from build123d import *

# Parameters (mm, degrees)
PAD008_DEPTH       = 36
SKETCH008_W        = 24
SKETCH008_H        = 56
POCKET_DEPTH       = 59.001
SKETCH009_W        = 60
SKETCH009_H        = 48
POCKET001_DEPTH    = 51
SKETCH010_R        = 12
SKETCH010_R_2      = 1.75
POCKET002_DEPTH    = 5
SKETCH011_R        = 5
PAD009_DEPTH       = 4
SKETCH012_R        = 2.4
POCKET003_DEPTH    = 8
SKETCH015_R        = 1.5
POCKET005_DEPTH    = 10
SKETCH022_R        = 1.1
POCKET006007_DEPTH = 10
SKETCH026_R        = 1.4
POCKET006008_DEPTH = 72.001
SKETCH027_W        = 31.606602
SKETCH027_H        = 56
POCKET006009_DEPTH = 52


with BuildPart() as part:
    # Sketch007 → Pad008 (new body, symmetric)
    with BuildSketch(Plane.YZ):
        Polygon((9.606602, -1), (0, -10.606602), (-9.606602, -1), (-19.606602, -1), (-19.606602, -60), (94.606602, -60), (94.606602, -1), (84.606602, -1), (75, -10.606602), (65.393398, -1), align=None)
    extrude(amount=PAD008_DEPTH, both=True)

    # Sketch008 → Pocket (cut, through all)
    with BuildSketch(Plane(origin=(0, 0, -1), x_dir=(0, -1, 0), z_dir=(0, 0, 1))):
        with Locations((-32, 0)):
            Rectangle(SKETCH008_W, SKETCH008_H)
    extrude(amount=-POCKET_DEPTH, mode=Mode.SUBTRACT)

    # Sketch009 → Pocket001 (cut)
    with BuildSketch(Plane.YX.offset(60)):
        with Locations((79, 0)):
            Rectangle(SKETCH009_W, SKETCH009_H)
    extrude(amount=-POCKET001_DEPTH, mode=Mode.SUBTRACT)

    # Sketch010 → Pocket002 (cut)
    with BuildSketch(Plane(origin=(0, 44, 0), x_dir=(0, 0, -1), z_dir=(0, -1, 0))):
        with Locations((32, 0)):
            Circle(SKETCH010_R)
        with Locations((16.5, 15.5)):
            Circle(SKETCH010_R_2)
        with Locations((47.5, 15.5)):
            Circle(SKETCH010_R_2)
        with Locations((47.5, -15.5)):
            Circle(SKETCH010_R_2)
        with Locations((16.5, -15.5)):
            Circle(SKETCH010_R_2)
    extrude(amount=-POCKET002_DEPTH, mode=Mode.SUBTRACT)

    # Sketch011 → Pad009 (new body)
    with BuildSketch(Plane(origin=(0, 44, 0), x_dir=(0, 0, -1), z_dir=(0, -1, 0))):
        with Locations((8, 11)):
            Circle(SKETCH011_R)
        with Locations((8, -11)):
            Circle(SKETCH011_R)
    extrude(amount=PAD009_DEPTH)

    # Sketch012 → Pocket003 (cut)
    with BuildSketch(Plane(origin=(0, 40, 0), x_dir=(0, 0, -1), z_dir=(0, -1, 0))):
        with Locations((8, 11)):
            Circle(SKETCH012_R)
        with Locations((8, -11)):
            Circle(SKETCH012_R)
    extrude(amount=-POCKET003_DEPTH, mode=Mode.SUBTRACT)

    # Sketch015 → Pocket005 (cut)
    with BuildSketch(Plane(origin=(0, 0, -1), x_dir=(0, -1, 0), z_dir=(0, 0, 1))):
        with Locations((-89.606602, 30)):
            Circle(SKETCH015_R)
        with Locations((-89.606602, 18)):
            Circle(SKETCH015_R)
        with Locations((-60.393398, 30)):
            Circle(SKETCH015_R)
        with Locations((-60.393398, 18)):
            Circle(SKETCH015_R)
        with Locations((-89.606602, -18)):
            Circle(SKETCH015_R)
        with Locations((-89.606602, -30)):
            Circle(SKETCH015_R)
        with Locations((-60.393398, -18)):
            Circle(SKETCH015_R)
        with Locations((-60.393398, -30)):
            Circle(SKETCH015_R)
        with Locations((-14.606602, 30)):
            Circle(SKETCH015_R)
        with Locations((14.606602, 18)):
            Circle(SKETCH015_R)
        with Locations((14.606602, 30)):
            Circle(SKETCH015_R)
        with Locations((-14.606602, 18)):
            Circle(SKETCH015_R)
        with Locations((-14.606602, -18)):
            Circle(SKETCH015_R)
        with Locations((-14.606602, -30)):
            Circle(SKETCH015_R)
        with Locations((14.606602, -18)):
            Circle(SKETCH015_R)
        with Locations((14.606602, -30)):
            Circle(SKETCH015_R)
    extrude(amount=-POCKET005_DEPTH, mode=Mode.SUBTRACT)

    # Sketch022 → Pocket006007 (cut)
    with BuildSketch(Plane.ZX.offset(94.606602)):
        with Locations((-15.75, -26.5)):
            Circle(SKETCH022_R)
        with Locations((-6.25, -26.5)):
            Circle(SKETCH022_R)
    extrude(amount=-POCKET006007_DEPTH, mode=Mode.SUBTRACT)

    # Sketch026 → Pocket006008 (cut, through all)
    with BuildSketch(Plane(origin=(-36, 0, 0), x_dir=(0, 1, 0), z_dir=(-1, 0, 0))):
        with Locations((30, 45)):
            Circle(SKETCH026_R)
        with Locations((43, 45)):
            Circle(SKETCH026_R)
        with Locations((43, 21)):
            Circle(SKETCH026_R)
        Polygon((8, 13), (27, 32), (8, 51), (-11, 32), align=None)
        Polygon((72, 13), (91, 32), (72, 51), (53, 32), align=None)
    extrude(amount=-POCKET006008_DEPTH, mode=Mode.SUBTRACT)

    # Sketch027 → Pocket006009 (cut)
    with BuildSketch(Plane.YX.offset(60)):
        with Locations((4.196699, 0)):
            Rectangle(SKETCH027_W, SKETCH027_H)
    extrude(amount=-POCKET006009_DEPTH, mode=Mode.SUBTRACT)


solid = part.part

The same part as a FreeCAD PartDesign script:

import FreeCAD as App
import Part
import Sketcher
from FreeCAD import Vector

doc = App.newDocument("Part")
body = doc.addObject("PartDesign::Body", "Body")

# Sketch on YZ plane
sketch1 = body.newObject("Sketcher::SketchObject", "Sketch")
sketch1.AttachmentSupport = (doc.getObject("YZ_Plane"), [""])
sketch1.MapMode = "FlatFace"
sketch1.addGeometry(Part.LineSegment(Vector(10, -1, 0), Vector(0, -11, 0)), False)
sketch1.addGeometry(Part.LineSegment(Vector(0, -11, 0), Vector(-10, -1, 0)), False)
sketch1.addGeometry(Part.LineSegment(Vector(-10, -1, 0), Vector(-20, -1, 0)), False)
sketch1.addGeometry(Part.LineSegment(Vector(-20, -1, 0), Vector(-20, -60, 0)), False)
sketch1.addGeometry(Part.LineSegment(Vector(-20, -60, 0), Vector(95, -60, 0)), False)
sketch1.addGeometry(Part.LineSegment(Vector(95, -60, 0), Vector(95, -1, 0)), False)
sketch1.addGeometry(Part.LineSegment(Vector(95, -1, 0), Vector(85, -1, 0)), False)
sketch1.addGeometry(Part.LineSegment(Vector(85, -1, 0), Vector(75, -11, 0)), False)
sketch1.addGeometry(Part.LineSegment(Vector(75, -11, 0), Vector(65, -1, 0)), False)
sketch1.addGeometry(Part.LineSegment(Vector(65, -1, 0), Vector(10, -1, 0)), False)
sketch1.addConstraint(Sketcher.Constraint("Coincident", 0, 2, 1, 1))
sketch1.addConstraint(Sketcher.Constraint("Coincident", 1, 2, 2, 1))
sketch1.addConstraint(Sketcher.Constraint("Coincident", 2, 2, 3, 1))
sketch1.addConstraint(Sketcher.Constraint("Coincident", 3, 2, 4, 1))
sketch1.addConstraint(Sketcher.Constraint("Coincident", 4, 2, 5, 1))
sketch1.addConstraint(Sketcher.Constraint("Coincident", 5, 2, 6, 1))
sketch1.addConstraint(Sketcher.Constraint("Coincident", 6, 2, 7, 1))
sketch1.addConstraint(Sketcher.Constraint("Coincident", 7, 2, 8, 1))
sketch1.addConstraint(Sketcher.Constraint("Coincident", 8, 2, 9, 1))
sketch1.addConstraint(Sketcher.Constraint("Coincident", 9, 2, 0, 1))
sketch1.addConstraint(Sketcher.Constraint("Horizontal", 2))
sketch1.addConstraint(Sketcher.Constraint("Vertical", 3))
sketch1.addConstraint(Sketcher.Constraint("Horizontal", 4))
sketch1.addConstraint(Sketcher.Constraint("Vertical", 5))
sketch1.addConstraint(Sketcher.Constraint("Horizontal", 6))
sketch1.addConstraint(Sketcher.Constraint("Horizontal", 9))
sketch1.addConstraint(Sketcher.Constraint("Symmetric", 1, 2, 9, 2, -2))
sketch1.addConstraint(Sketcher.Constraint("PointOnObject", 0, 2, -2))
sketch1.addConstraint(Sketcher.Constraint("Perpendicular", 0, 1))
sketch1.addConstraint(Sketcher.Constraint("Perpendicular", 1, 7))
sketch1.addConstraint(Sketcher.Constraint("Perpendicular", 7, 8))
sketch1.addConstraint(Sketcher.Constraint("Horizontal", 2, 2, 5, 2))
sketch1.addConstraint(Sketcher.Constraint("Horizontal", 0, 2, 7, 2))
sketch1.addConstraint(Sketcher.Constraint("Equal", 2, 6))
sketch1.addConstraint(Sketcher.Constraint("DistanceX", 2, 2, 2, 1, 10.0))
sketch1.addConstraint(Sketcher.Constraint("DistanceY", 3, 2, 3, 1, 59.0))
sketch1.addConstraint(Sketcher.Constraint("DistanceY", 1, 2, -1, 1, 1.0))
sketch1.addConstraint(Sketcher.Constraint("DistanceX", -1, 1, 7, 2, 75.0))
sketch1.addConstraint(Sketcher.Constraint("DistanceX", 2, 2, -1, 1, 19.606602))
pad1 = body.newObject("PartDesign::Pad", "Pad")
pad1.Profile = sketch1
pad1.Length = 72
pad1.Midplane = True

# Sketch on XY plane
sketch2 = body.newObject("Sketcher::SketchObject", "Sketch001")
sketch2.AttachmentSupport = (doc.getObject("XY_Plane"), [""])
sketch2.MapMode = "FlatFace"
sketch2.AttachmentOffset = App.Placement(Vector(0, 0, -1), App.Rotation())
sketch2.addGeometry(Part.LineSegment(Vector(28, 44, 0), Vector(-28, 44, 0)), False)
sketch2.addGeometry(Part.LineSegment(Vector(-28, 44, 0), Vector(-28, 20, 0)), False)
sketch2.addGeometry(Part.LineSegment(Vector(-28, 20, 0), Vector(28, 20, 0)), False)
sketch2.addGeometry(Part.LineSegment(Vector(28, 20, 0), Vector(28, 44, 0)), False)
sketch2.addConstraint(Sketcher.Constraint("Coincident", 0, 2, 1, 1))
sketch2.addConstraint(Sketcher.Constraint("Coincident", 1, 2, 2, 1))
sketch2.addConstraint(Sketcher.Constraint("Coincident", 2, 2, 3, 1))
sketch2.addConstraint(Sketcher.Constraint("Coincident", 3, 2, 0, 1))
sketch2.addConstraint(Sketcher.Constraint("Horizontal", 0))
sketch2.addConstraint(Sketcher.Constraint("Vertical", 1))
sketch2.addConstraint(Sketcher.Constraint("Horizontal", 2))
sketch2.addConstraint(Sketcher.Constraint("Vertical", 3))
sketch2.addConstraint(Sketcher.Constraint("DistanceX", 0, 2, 0, 1, 56.0))
sketch2.addConstraint(Sketcher.Constraint("DistanceY", 1, 2, 1, 1, 24.0))
sketch2.addConstraint(Sketcher.Constraint("DistanceX", 0, 2, -1, 1, 28.0))
sketch2.addConstraint(Sketcher.Constraint("DistanceY", -1, 1, 0, 2, 44.0))
pocket1 = body.newObject("PartDesign::Pocket", "Pocket")
pocket1.Profile = sketch2
pocket1.Type = "ThroughAll"

# Sketch on XY plane
sketch3 = body.newObject("Sketcher::SketchObject", "Sketch002")
sketch3.AttachmentSupport = (doc.getObject("XY_Plane"), [""])
sketch3.MapMode = "FlatFace"
sketch3.AttachmentOffset = App.Placement(Vector(0, 0, -60), App.Rotation())
sketch3.addGeometry(Part.LineSegment(Vector(24, 49, 0), Vector(-24, 49, 0)), False)
sketch3.addGeometry(Part.LineSegment(Vector(-24, 49, 0), Vector(-24, 109, 0)), False)
sketch3.addGeometry(Part.LineSegment(Vector(-24, 109, 0), Vector(24, 109, 0)), False)
sketch3.addGeometry(Part.LineSegment(Vector(24, 109, 0), Vector(24, 49, 0)), False)
sketch3.addConstraint(Sketcher.Constraint("Coincident", 0, 2, 1, 1))
sketch3.addConstraint(Sketcher.Constraint("Coincident", 1, 2, 2, 1))
sketch3.addConstraint(Sketcher.Constraint("Coincident", 2, 2, 3, 1))
sketch3.addConstraint(Sketcher.Constraint("Coincident", 3, 2, 0, 1))
sketch3.addConstraint(Sketcher.Constraint("Horizontal", 0))
sketch3.addConstraint(Sketcher.Constraint("Vertical", 1))
sketch3.addConstraint(Sketcher.Constraint("Horizontal", 2))
sketch3.addConstraint(Sketcher.Constraint("Vertical", 3))
sketch3.addConstraint(Sketcher.Constraint("DistanceX", 0, 2, 0, 1, 48.0))
sketch3.addConstraint(Sketcher.Constraint("DistanceY", 1, 1, 1, 2, 60.0))
sketch3.addConstraint(Sketcher.Constraint("DistanceX", 0, 2, -1, 1, 24.0))
sketch3.addConstraint(Sketcher.Constraint("DistanceY", -1, 1, 0, 2, 49.0))
pocket2 = body.newObject("PartDesign::Pocket", "Pocket001")
pocket2.Profile = sketch3
pocket2.Length = 51
pocket2.Reversed = True

# Sketch on XZ plane
sketch4 = body.newObject("Sketcher::SketchObject", "Sketch003")
sketch4.AttachmentSupport = (doc.getObject("XZ_Plane"), [""])
sketch4.MapMode = "FlatFace"
sketch4.AttachmentOffset = App.Placement(Vector(0, 0, -44), App.Rotation())
sketch4.addGeometry(Part.Circle(Vector(0, -32, 0), Vector(0, 0, 1), 12), False)
sketch4.addGeometry(Part.Circle(Vector(15.5, -16.5, 0), Vector(0, 0, 1), 1.8), False)
sketch4.addGeometry(Part.Circle(Vector(15.5, -47.5, 0), Vector(0, 0, 1), 1.8), False)
sketch4.addGeometry(Part.Circle(Vector(-15.5, -47.5, 0), Vector(0, 0, 1), 1.8), False)
sketch4.addGeometry(Part.Circle(Vector(-15.5, -16.5, 0), Vector(0, 0, 1), 1.8), False)
sketch4.addConstraint(Sketcher.Constraint("Equal", 1, 2))
sketch4.addConstraint(Sketcher.Constraint("Equal", 2, 3))
sketch4.addConstraint(Sketcher.Constraint("Equal", 3, 4))
sketch4.addConstraint(Sketcher.Constraint("Symmetric", 2, 3, 3, 3, -2))
sketch4.addConstraint(Sketcher.Constraint("Symmetric", 1, 3, 4, 3, -2))
sketch4.addConstraint(Sketcher.Constraint("PointOnObject", 0, 3, -2))
sketch4.addConstraint(Sketcher.Constraint("Vertical", 1, 3, 2, 3))
sketch4.addConstraint(Sketcher.Constraint("Diameter", 0, 24.0))
sketch4.addConstraint(Sketcher.Constraint("Diameter", 1, 3.5))
sketch4.addConstraint(Sketcher.Constraint("DistanceY", 0, 3, -1, 1, 32.0))
sketch4.addConstraint(Sketcher.Constraint("DistanceY", 2, 3, 1, 3, 31.0))
sketch4.addConstraint(Sketcher.Constraint("DistanceX", 3, 3, 2, 3, 31.0))
sketch4.addConstraint(Sketcher.Constraint("DistanceY", 1, 3, -1, 1, 16.5))
pocket3 = body.newObject("PartDesign::Pocket", "Pocket002")
pocket3.Profile = sketch4
pocket3.Length = 5

# Sketch on XZ plane
sketch5 = body.newObject("Sketcher::SketchObject", "Sketch004")
sketch5.AttachmentSupport = (doc.getObject("XZ_Plane"), [""])
sketch5.MapMode = "FlatFace"
sketch5.AttachmentOffset = App.Placement(Vector(0, 0, -44), App.Rotation())
sketch5.addGeometry(Part.Circle(Vector(11, -8, 0), Vector(0, 0, 1), 5), False)
sketch5.addGeometry(Part.Circle(Vector(-11, -8, 0), Vector(0, 0, 1), 5), False)
sketch5.addConstraint(Sketcher.Constraint("Equal", 0, 1))
sketch5.addConstraint(Sketcher.Constraint("Symmetric", 0, 3, 1, 3, -2))
sketch5.addConstraint(Sketcher.Constraint("Diameter", 0, 10.0))
sketch5.addConstraint(Sketcher.Constraint("DistanceX", -1, 1, 0, 3, 11.0))
sketch5.addConstraint(Sketcher.Constraint("DistanceY", 0, 3, -1, 1, 8.0))
pad2 = body.newObject("PartDesign::Pad", "Pad001")
pad2.Profile = sketch5
pad2.Length = 4

# Sketch on XZ plane
sketch6 = body.newObject("Sketcher::SketchObject", "Sketch005")
sketch6.AttachmentSupport = (doc.getObject("XZ_Plane"), [""])
sketch6.MapMode = "FlatFace"
sketch6.AttachmentOffset = App.Placement(Vector(0, 0, -40), App.Rotation())
sketch6.addGeometry(Part.Circle(Vector(11, -8, 0), Vector(0, 0, 1), 2.4), False)
sketch6.addGeometry(Part.Circle(Vector(-11, -8, 0), Vector(0, 0, 1), 2.4), False)
sketch6.addConstraint(Sketcher.Constraint("Equal", 0, 1))
sketch6.addConstraint(Sketcher.Constraint("Symmetric", 0, 3, 1, 3, -2))
sketch6.addConstraint(Sketcher.Constraint("Diameter", 0, 4.8))
sketch6.addConstraint(Sketcher.Constraint("DistanceX", -1, 1, 0, 3, 11.0))
sketch6.addConstraint(Sketcher.Constraint("DistanceY", 0, 3, -1, 1, 8.0))
pocket4 = body.newObject("PartDesign::Pocket", "Pocket003")
pocket4.Profile = sketch6
pocket4.Length = 8

# Sketch on XY plane
sketch7 = body.newObject("Sketcher::SketchObject", "Sketch006")
sketch7.AttachmentSupport = (doc.getObject("XY_Plane"), [""])
sketch7.MapMode = "FlatFace"
sketch7.AttachmentOffset = App.Placement(Vector(0, 0, -1), App.Rotation())
sketch7.addGeometry(Part.Circle(Vector(30, 89.6, 0), Vector(0, 0, 1), 1.5), False)
sketch7.addGeometry(Part.Circle(Vector(18, 89.6, 0), Vector(0, 0, 1), 1.5), False)
sketch7.addGeometry(Part.Circle(Vector(30, 60.4, 0), Vector(0, 0, 1), 1.5), False)
sketch7.addGeometry(Part.Circle(Vector(18, 60.4, 0), Vector(0, 0, 1), 1.5), False)
sketch7.addGeometry(Part.Circle(Vector(-18, 89.6, 0), Vector(0, 0, 1), 1.5), False)
sketch7.addGeometry(Part.Circle(Vector(-30, 89.6, 0), Vector(0, 0, 1), 1.5), False)
sketch7.addGeometry(Part.Circle(Vector(-18, 60.4, 0), Vector(0, 0, 1), 1.5), False)
sketch7.addGeometry(Part.Circle(Vector(-30, 60.4, 0), Vector(0, 0, 1), 1.5), False)
sketch7.addGeometry(Part.Circle(Vector(30, 14.6, 0), Vector(0, 0, 1), 1.5), False)
sketch7.addGeometry(Part.Circle(Vector(18, -14.6, 0), Vector(0, 0, 1), 1.5), False)
sketch7.addGeometry(Part.Circle(Vector(30, -14.6, 0), Vector(0, 0, 1), 1.5), False)
sketch7.addGeometry(Part.Circle(Vector(18, 14.6, 0), Vector(0, 0, 1), 1.5), False)
sketch7.addGeometry(Part.Circle(Vector(-18, 14.6, 0), Vector(0, 0, 1), 1.5), False)
sketch7.addGeometry(Part.Circle(Vector(-30, 14.6, 0), Vector(0, 0, 1), 1.5), False)
sketch7.addGeometry(Part.Circle(Vector(-18, -14.6, 0), Vector(0, 0, 1), 1.5), False)
sketch7.addGeometry(Part.Circle(Vector(-30, -14.6, 0), Vector(0, 0, 1), 1.5), False)
sketch7.addConstraint(Sketcher.Constraint("Equal", 0, 1))
sketch7.addConstraint(Sketcher.Constraint("Equal", 1, 2))
sketch7.addConstraint(Sketcher.Constraint("Equal", 2, 3))
sketch7.addConstraint(Sketcher.Constraint("Equal", 3, 4))
sketch7.addConstraint(Sketcher.Constraint("Equal", 4, 5))
sketch7.addConstraint(Sketcher.Constraint("Equal", 5, 6))
sketch7.addConstraint(Sketcher.Constraint("Equal", 6, 7))
sketch7.addConstraint(Sketcher.Constraint("Equal", 7, 8))
sketch7.addConstraint(Sketcher.Constraint("Equal", 8, 9))
sketch7.addConstraint(Sketcher.Constraint("Equal", 9, 10))
sketch7.addConstraint(Sketcher.Constraint("Equal", 10, 11))
sketch7.addConstraint(Sketcher.Constraint("Equal", 11, 12))
sketch7.addConstraint(Sketcher.Constraint("Equal", 12, 13))
sketch7.addConstraint(Sketcher.Constraint("Equal", 13, 14))
sketch7.addConstraint(Sketcher.Constraint("Equal", 14, 15))
sketch7.addConstraint(Sketcher.Constraint("Symmetric", 9, 3, 12, 3, -1, 1))
sketch7.addConstraint(Sketcher.Constraint("Symmetric", 10, 3, 13, 3, -1, 1))
sketch7.addConstraint(Sketcher.Constraint("Symmetric", 11, 3, 14, 3, -1, 1))
sketch7.addConstraint(Sketcher.Constraint("Symmetric", 8, 3, 15, 3, -1, 1))
sketch7.addConstraint(Sketcher.Constraint("Symmetric", 1, 3, 4, 3, -2))
sketch7.addConstraint(Sketcher.Constraint("Symmetric", 0, 3, 5, 3, -2))
sketch7.addConstraint(Sketcher.Constraint("Symmetric", 3, 3, 6, 3, -2))
sketch7.addConstraint(Sketcher.Constraint("Symmetric", 2, 3, 7, 3, -2))
sketch7.addConstraint(Sketcher.Constraint("Symmetric", 11, 3, 12, 3, -2))
sketch7.addConstraint(Sketcher.Constraint("Symmetric", 8, 3, 13, 3, -2))
sketch7.addConstraint(Sketcher.Constraint("Horizontal", 0, 3, 1, 3))
sketch7.addConstraint(Sketcher.Constraint("Horizontal", 2, 3, 3, 3))
sketch7.addConstraint(Sketcher.Constraint("Horizontal", 9, 3, 10, 3))
sketch7.addConstraint(Sketcher.Constraint("Vertical", 0, 3, 2, 3))
sketch7.addConstraint(Sketcher.Constraint("Vertical", 1, 3, 3, 3))
sketch7.addConstraint(Sketcher.Constraint("Vertical", 2, 3, 8, 3))
sketch7.addConstraint(Sketcher.Constraint("Vertical", 3, 3, 9, 3))
sketch7.addConstraint(Sketcher.Constraint("Diameter", 0, 3.0))
sketch7.addConstraint(Sketcher.Constraint("DistanceX", -1, 1, 0, 3, 30.0))
sketch7.addConstraint(Sketcher.Constraint("DistanceX", -1, 1, 1, 3, 18.0))
sketch7.addConstraint(Sketcher.Constraint("DistanceY", 8, 3, 0, 3, 75.0))
sketch7.addConstraint(Sketcher.Constraint("DistanceY", 9, 3, 3, 3, 75.0))
sketch7.addConstraint(Sketcher.Constraint("DistanceY", -1, 1, 0, 3, 89.606602))
pocket5 = body.newObject("PartDesign::Pocket", "Pocket004")
pocket5.Profile = sketch7
pocket5.Length = 10

# Sketch on XZ plane
sketch8 = body.newObject("Sketcher::SketchObject", "Sketch007")
sketch8.AttachmentSupport = (doc.getObject("XZ_Plane"), [""])
sketch8.MapMode = "FlatFace"
sketch8.AttachmentOffset = App.Placement(Vector(0, 0, -94.606602), App.Rotation())
sketch8.addGeometry(Part.Circle(Vector(-26.5, -15.8, 0), Vector(0, 0, 1), 1.1), False)
sketch8.addGeometry(Part.Circle(Vector(-26.5, -6.2, 0), Vector(0, 0, 1), 1.1), False)
sketch8.addConstraint(Sketcher.Constraint("Equal", 0, 1))
sketch8.addConstraint(Sketcher.Constraint("Vertical", 0, 3, 1, 3))
sketch8.addConstraint(Sketcher.Constraint("Diameter", 0, 2.2))
sketch8.addConstraint(Sketcher.Constraint("DistanceX", 0, 3, -1, 1, 26.5))
sketch8.addConstraint(Sketcher.Constraint("DistanceY", 0, 3, 1, 3, 9.5))
sketch8.addConstraint(Sketcher.Constraint("DistanceY", 0, 3, -1, 1, 15.75))
pocket6 = body.newObject("PartDesign::Pocket", "Pocket005")
pocket6.Profile = sketch8
pocket6.Length = 10
pocket6.Reversed = True

# Sketch on YZ plane
sketch9 = body.newObject("Sketcher::SketchObject", "Sketch008")
sketch9.AttachmentSupport = (doc.getObject("YZ_Plane"), [""])
sketch9.MapMode = "FlatFace"
sketch9.AttachmentOffset = App.Placement(Vector(0, 0, -36), App.Rotation())
sketch9.addGeometry(Part.Circle(Vector(30, -45, 0), Vector(0, 0, 1), 1.4), False)
sketch9.addGeometry(Part.Circle(Vector(43, -45, 0), Vector(0, 0, 1), 1.4), False)
sketch9.addGeometry(Part.Circle(Vector(43, -21, 0), Vector(0, 0, 1), 1.4), False)
sketch9.addGeometry(Part.LineSegment(Vector(8, -13, 0), Vector(27, -32, 0)), False)
sketch9.addGeometry(Part.LineSegment(Vector(27, -32, 0), Vector(8, -51, 0)), False)
sketch9.addGeometry(Part.LineSegment(Vector(8, -51, 0), Vector(-11, -32, 0)), False)
sketch9.addGeometry(Part.LineSegment(Vector(-11, -32, 0), Vector(8, -13, 0)), False)
sketch9.addGeometry(Part.LineSegment(Vector(72, -13, 0), Vector(91, -32, 0)), False)
sketch9.addGeometry(Part.LineSegment(Vector(91, -32, 0), Vector(72, -51, 0)), False)
sketch9.addGeometry(Part.LineSegment(Vector(72, -51, 0), Vector(53, -32, 0)), False)
sketch9.addGeometry(Part.LineSegment(Vector(53, -32, 0), Vector(72, -13, 0)), False)
sketch9.addConstraint(Sketcher.Constraint("Coincident", 3, 2, 4, 1))
sketch9.addConstraint(Sketcher.Constraint("Coincident", 4, 2, 5, 1))
sketch9.addConstraint(Sketcher.Constraint("Coincident", 5, 2, 6, 1))
sketch9.addConstraint(Sketcher.Constraint("Coincident", 6, 2, 3, 1))
sketch9.addConstraint(Sketcher.Constraint("Coincident", 7, 2, 8, 1))
sketch9.addConstraint(Sketcher.Constraint("Coincident", 8, 2, 9, 1))
sketch9.addConstraint(Sketcher.Constraint("Coincident", 9, 2, 10, 1))
sketch9.addConstraint(Sketcher.Constraint("Coincident", 10, 2, 7, 1))
sketch9.addConstraint(Sketcher.Constraint("Equal", 0, 1))
sketch9.addConstraint(Sketcher.Constraint("Equal", 1, 2))
sketch9.addConstraint(Sketcher.Constraint("Perpendicular", 3, 4))
sketch9.addConstraint(Sketcher.Constraint("Perpendicular", 4, 5))
sketch9.addConstraint(Sketcher.Constraint("Perpendicular", 5, 6))
sketch9.addConstraint(Sketcher.Constraint("Perpendicular", 6, 7))
sketch9.addConstraint(Sketcher.Constraint("Perpendicular", 7, 8))
sketch9.addConstraint(Sketcher.Constraint("Perpendicular", 8, 9))
sketch9.addConstraint(Sketcher.Constraint("Perpendicular", 9, 10))
sketch9.addConstraint(Sketcher.Constraint("Horizontal", 0, 3, 1, 3))
sketch9.addConstraint(Sketcher.Constraint("Horizontal", 3, 2, 5, 2))
sketch9.addConstraint(Sketcher.Constraint("Horizontal", 5, 2, 7, 2))
sketch9.addConstraint(Sketcher.Constraint("Horizontal", 4, 2, 8, 2))
sketch9.addConstraint(Sketcher.Constraint("Horizontal", 7, 2, 9, 2))
sketch9.addConstraint(Sketcher.Constraint("Vertical", 1, 3, 2, 3))
sketch9.addConstraint(Sketcher.Constraint("Vertical", 4, 2, 6, 2))
sketch9.addConstraint(Sketcher.Constraint("Diameter", 0, 2.8))
sketch9.addConstraint(Sketcher.Constraint("DistanceX", -1, 1, 0, 3, 30.0))
sketch9.addConstraint(Sketcher.Constraint("DistanceY", 0, 3, -1, 1, 45.0))
sketch9.addConstraint(Sketcher.Constraint("DistanceX", -1, 1, 1, 3, 43.0))
sketch9.addConstraint(Sketcher.Constraint("DistanceY", 2, 3, -1, 1, 21.0))
sketch9.addConstraint(Sketcher.Constraint("DistanceX", -1, 1, 3, 2, 27.0))
sketch9.addConstraint(Sketcher.Constraint("DistanceY", 3, 2, -1, 1, 32.0))
sketch9.addConstraint(Sketcher.Constraint("DistanceX", -1, 1, 4, 2, 8.0))
sketch9.addConstraint(Sketcher.Constraint("DistanceX", -1, 1, 7, 2, 91.0))
pocket7 = body.newObject("PartDesign::Pocket", "Pocket006")
pocket7.Profile = sketch9
pocket7.Type = "ThroughAll"
pocket7.Reversed = True

# Sketch on XY plane
sketch10 = body.newObject("Sketcher::SketchObject", "Sketch009")
sketch10.AttachmentSupport = (doc.getObject("XY_Plane"), [""])
sketch10.MapMode = "FlatFace"
sketch10.AttachmentOffset = App.Placement(Vector(0, 0, -60), App.Rotation())
sketch10.addGeometry(Part.LineSegment(Vector(28, -12, 0), Vector(-28, -12, 0)), False)
sketch10.addGeometry(Part.LineSegment(Vector(-28, -12, 0), Vector(-28, 20, 0)), False)
sketch10.addGeometry(Part.LineSegment(Vector(-28, 20, 0), Vector(28, 20, 0)), False)
sketch10.addGeometry(Part.LineSegment(Vector(28, 20, 0), Vector(28, -12, 0)), False)
sketch10.addConstraint(Sketcher.Constraint("Coincident", 0, 2, 1, 1))
sketch10.addConstraint(Sketcher.Constraint("Coincident", 1, 2, 2, 1))
sketch10.addConstraint(Sketcher.Constraint("Coincident", 2, 2, 3, 1))
sketch10.addConstraint(Sketcher.Constraint("Coincident", 3, 2, 0, 1))
sketch10.addConstraint(Sketcher.Constraint("Horizontal", 0))
sketch10.addConstraint(Sketcher.Constraint("Vertical", 1))
sketch10.addConstraint(Sketcher.Constraint("Horizontal", 2))
sketch10.addConstraint(Sketcher.Constraint("Vertical", 3))
sketch10.addConstraint(Sketcher.Constraint("DistanceX", 0, 2, 0, 1, 56.0))
sketch10.addConstraint(Sketcher.Constraint("DistanceX", 0, 2, -1, 1, 28.0))
sketch10.addConstraint(Sketcher.Constraint("DistanceY", -1, 1, 1, 2, 20.0))
sketch10.addConstraint(Sketcher.Constraint("DistanceY", 1, 1, 1, 2, 31.606602))
pocket8 = body.newObject("PartDesign::Pocket", "Pocket007")
pocket8.Profile = sketch10
pocket8.Length = 52
pocket8.Reversed = True

doc.recompute()
